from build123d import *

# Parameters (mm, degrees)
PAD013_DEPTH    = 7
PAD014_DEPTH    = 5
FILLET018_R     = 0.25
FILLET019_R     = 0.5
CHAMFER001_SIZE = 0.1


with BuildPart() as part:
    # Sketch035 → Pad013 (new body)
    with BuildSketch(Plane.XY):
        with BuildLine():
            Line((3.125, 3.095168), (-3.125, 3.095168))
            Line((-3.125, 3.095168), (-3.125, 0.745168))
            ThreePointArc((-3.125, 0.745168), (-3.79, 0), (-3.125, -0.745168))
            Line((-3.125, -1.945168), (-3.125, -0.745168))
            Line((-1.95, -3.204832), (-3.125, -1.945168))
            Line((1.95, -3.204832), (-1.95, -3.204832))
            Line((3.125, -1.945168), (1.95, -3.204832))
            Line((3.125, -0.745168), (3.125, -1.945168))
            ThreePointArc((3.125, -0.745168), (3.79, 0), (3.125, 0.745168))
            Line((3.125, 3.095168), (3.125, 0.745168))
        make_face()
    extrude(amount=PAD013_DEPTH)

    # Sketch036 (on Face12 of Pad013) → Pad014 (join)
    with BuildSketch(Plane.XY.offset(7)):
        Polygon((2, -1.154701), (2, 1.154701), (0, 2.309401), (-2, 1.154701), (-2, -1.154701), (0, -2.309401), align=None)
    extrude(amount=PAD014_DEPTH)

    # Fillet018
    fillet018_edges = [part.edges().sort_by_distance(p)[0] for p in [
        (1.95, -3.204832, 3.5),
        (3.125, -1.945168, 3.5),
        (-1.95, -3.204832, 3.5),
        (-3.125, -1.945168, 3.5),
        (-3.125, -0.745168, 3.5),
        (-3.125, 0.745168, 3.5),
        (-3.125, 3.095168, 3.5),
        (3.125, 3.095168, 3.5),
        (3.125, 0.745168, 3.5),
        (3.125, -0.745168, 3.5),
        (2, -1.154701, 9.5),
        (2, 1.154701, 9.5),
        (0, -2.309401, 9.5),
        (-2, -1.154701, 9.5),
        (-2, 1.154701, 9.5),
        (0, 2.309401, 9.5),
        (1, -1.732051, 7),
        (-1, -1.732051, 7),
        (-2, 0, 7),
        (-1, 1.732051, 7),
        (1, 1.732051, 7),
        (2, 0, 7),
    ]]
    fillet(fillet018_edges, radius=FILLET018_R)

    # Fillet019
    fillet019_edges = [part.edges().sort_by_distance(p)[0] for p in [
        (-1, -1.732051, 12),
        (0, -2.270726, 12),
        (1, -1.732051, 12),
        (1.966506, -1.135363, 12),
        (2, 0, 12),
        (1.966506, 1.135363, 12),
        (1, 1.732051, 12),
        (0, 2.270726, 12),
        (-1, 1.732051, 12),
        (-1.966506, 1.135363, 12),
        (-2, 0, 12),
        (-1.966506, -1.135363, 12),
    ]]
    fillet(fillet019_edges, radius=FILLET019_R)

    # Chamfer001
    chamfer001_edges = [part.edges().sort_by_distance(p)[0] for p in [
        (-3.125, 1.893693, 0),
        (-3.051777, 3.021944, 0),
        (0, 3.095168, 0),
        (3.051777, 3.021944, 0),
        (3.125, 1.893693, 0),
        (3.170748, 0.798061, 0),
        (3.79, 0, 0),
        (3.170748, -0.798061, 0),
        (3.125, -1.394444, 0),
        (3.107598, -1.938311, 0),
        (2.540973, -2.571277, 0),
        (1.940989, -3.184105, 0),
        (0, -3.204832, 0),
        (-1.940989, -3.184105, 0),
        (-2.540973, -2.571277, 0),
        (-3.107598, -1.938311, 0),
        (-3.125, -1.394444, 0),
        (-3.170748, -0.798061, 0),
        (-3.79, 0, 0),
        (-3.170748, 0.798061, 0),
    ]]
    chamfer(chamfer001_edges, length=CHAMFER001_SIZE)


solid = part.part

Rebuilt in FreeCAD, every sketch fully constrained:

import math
import FreeCAD as App
import Part
import Sketcher

V = App.Vector
Q = App.Units.Quantity


def edges_at(feature, points):
    """Names of the edges that pass closest to the given points."""
    edges = feature.Shape.Edges
    near = lambda p: min(range(len(edges)), key=lambda i: edges[i].distToShape(Part.Vertex(*p))[0])
    return sorted({f"Edge{near(p) + 1}" for p in points})

doc = App.newDocument("Part")
body = doc.addObject("PartDesign::Body", "Body")

# Sketch on XY plane
sketch1 = doc.addObject("Sketcher::SketchObject", "Sketch")
body.addObject(sketch1)
sketch1.AttachmentSupport = (doc.XY_Plane, [""])
sketch1.MapMode = "FlatFace"
sketch1.addGeometry(Part.LineSegment(V(3.1, 3.1, 0), V(-3.1, 3.1, 0)), False)
sketch1.addGeometry(Part.LineSegment(V(-3.1, 3.1, 0), V(-3.1, 0.7, 0)), False)
sketch1.addGeometry(Part.ArcOfCircle(Part.Circle(V(-3, 0, 0), V(0, 0, 1), 0.8), math.radians(97), math.radians(263)), False)
sketch1.addGeometry(Part.LineSegment(V(-3.1, -0.7, 0), V(-3.1, -1.9, 0)), False)
sketch1.addGeometry(Part.LineSegment(V(-3.1, -1.9, 0), V(-1.9, -3.2, 0)), False)
sketch1.addGeometry(Part.LineSegment(V(-1.9, -3.2, 0), V(1.9, -3.2, 0)), False)
sketch1.addGeometry(Part.LineSegment(V(1.9, -3.2, 0), V(3.1, -1.9, 0)), False)
sketch1.addGeometry(Part.LineSegment(V(3.1, -1.9, 0), V(3.1, -0.7, 0)), False)
sketch1.addGeometry(Part.ArcOfCircle(Part.Circle(V(3, 0, 0), V(0, 0, 1), 0.8), math.radians(-83), math.radians(83)), False)
sketch1.addGeometry(Part.LineSegment(V(3.1, 0.7, 0), V(3.1, 3.1, 0)), False)
sketch1.addConstraint(Sketcher.Constraint("Coincident", 0, 2, 1, 1))
sketch1.addConstraint(Sketcher.Constraint("Coincident", 1, 2, 2, 1))
sketch1.addConstraint(Sketcher.Constraint("Coincident", 2, 2, 3, 1))
sketch1.addConstraint(Sketcher.Constraint("Coincident", 3, 2, 4, 1))
sketch1.addConstraint(Sketcher.Constraint("Coincident", 4, 2, 5, 1))
sketch1.addConstraint(Sketcher.Constraint("Coincident", 5, 2, 6, 1))
sketch1.addConstraint(Sketcher.Constraint("Coincident", 6, 2, 7, 1))
sketch1.addConstraint(Sketcher.Constraint("Coincident", 7, 2, 8, 1))
sketch1.addConstraint(Sketcher.Constraint("Coincident", 8, 2, 9, 1))
sketch1.addConstraint(Sketcher.Constraint("Coincident", 9, 2, 0, 1))
sketch1.addConstraint(Sketcher.Constraint("Horizontal", 0))
sketch1.addConstraint(Sketcher.Constraint("Vertical", 1))
sketch1.addConstraint(Sketcher.Constraint("Vertical", 3))
sketch1.addConstraint(Sketcher.Constraint("Horizontal", 5))
sketch1.addConstraint(Sketcher.Constraint("Vertical", 7))
sketch1.addConstraint(Sketcher.Constraint("Vertical", 9))
sketch1.addConstraint(Sketcher.Constraint("Equal", 2, 8))
sketch1.addConstraint(Sketcher.Constraint("Symmetric", 2, 3, 8, 3, -1, 1))
sketch1.addConstraint(Sketcher.Constraint("Symmetric", 3, 2, 6, 2, -2))
sketch1.addConstraint(Sketcher.Constraint("Symmetric", 1, 2, 8, 2, -2))
sketch1.addConstraint(Sketcher.Constraint("Vertical", 1, 2, 2, 2))
sketch1.addConstraint(Sketcher.Constraint("Equal", 4, 6))
sketch1.addConstraint(Sketcher.Constraint("Radius", 2, Q("0.75 mm")))
sketch1.addConstraint(Sketcher.Constraint("DistanceX", 5, 1, 5, 2, Q("3.9 mm")))
sketch1.addConstraint(Sketcher.Constraint("DistanceY", 3, 2, 3, 1, Q("1.2 mm")))
sketch1.addConstraint(Sketcher.Constraint("DistanceX", 0, 2, 0, 1, Q("6.25 mm")))
sketch1.addConstraint(Sketcher.Constraint("DistanceY", 1, 2, 1, 1, Q("2.35 mm")))
sketch1.addConstraint(Sketcher.Constraint("DistanceX", 2, 3, -1, 1, Q("3.04 mm")))
sketch1.addConstraint(Sketcher.Constraint("DistanceY", 4, 2, 1, 2, Q("3.95 mm")))
pad1 = doc.addObject("PartDesign::Pad", "Pad")
body.addObject(pad1)
pad1.Profile = sketch1
pad1.Length = 7

# Sketch on XY plane
sketch2 = doc.addObject("Sketcher::SketchObject", "Sketch001")
body.addObject(sketch2)
sketch2.AttachmentSupport = (doc.XY_Plane, [""])
sketch2.MapMode = "FlatFace"
sketch2.AttachmentOffset = App.Placement(V(0, 0, 7), App.Rotation())
sketch2.addGeometry(Part.LineSegment(V(2, -1.2, 0), V(2, 1.2, 0)), False)
sketch2.addGeometry(Part.LineSegment(V(2, 1.2, 0), V(0, 2.3, 0)), False)
sketch2.addGeometry(Part.LineSegment(V(0, 2.3, 0), V(-2, 1.2, 0)), False)
sketch2.addGeometry(Part.LineSegment(V(-2, 1.2, 0), V(-2, -1.2, 0)), False)
sketch2.addGeometry(Part.LineSegment(V(-2, -1.2, 0), V(0, -2.3, 0)), False)
sketch2.addGeometry(Part.LineSegment(V(0, -2.3, 0), V(2, -1.2, 0)), False)
sketch2.addConstraint(Sketcher.Constraint("Coincident", 0, 2, 1, 1))
sketch2.addConstraint(Sketcher.Constraint("Coincident", 1, 2, 2, 1))
sketch2.addConstraint(Sketcher.Constraint("Coincident", 2, 2, 3, 1))
sketch2.addConstraint(Sketcher.Constraint("Coincident", 3, 2, 4, 1))
sketch2.addConstraint(Sketcher.Constraint("Coincident", 4, 2, 5, 1))
sketch2.addConstraint(Sketcher.Constraint("Coincident", 5, 2, 0, 1))
sketch2.addConstraint(Sketcher.Constraint("Vertical", 0))
sketch2.addConstraint(Sketcher.Constraint("Vertical", 3))
sketch2.addConstraint(Sketcher.Constraint("Symmetric", 0, 2, 3, 2, -1, 1))
sketch2.addConstraint(Sketcher.Constraint("Symmetric", 1, 2, 4, 2, -1, 1))
sketch2.addConstraint(Sketcher.Constraint("PointOnObject", 1, 2, -2))
sketch2.addConstraint(Sketcher.Constraint("Parallel", 2, 5))
sketch2.addConstraint(Sketcher.Constraint("Horizontal", 0, 2, 2, 2))
sketch2.addConstraint(Sketcher.Constraint("Angle", 1, Q("150.000012 deg")))
sketch2.addConstraint(Sketcher.Constraint("DistanceX", -1, 1, 0, 2, Q("2 mm")))
sketch2.addConstraint(Sketcher.Constraint("DistanceY", 0, 1, 0, 2, Q("2.309402 mm")))
pad2 = doc.addObject("PartDesign::Pad", "Pad001")
body.addObject(pad2)
pad2.Profile = sketch2
pad2.Length = 5
doc.recompute()

fillet = doc.addObject("PartDesign::Fillet", "Fillet")
body.addObject(fillet)
fillet.Base = (pad2, edges_at(pad2, [
    (1.95, -3.205, 3.5),
    (3.125, -1.945, 3.5),
    (-1.95, -3.205, 3.5),
    (-3.125, -1.945, 3.5),
    (-3.125, -0.745, 3.5),
    (-3.125, 0.745, 3.5),
    (-3.125, 3.095, 3.5),
    (3.125, 3.095, 3.5),
    (3.125, 0.745, 3.5),
    (3.125, -0.745, 3.5),
    (2, -1.155, 9.5),
    (2, 1.155, 9.5),
    (0, -2.309, 9.5),
    (-2, -1.155, 9.5),
    (-2, 1.155, 9.5),
    (0, 2.309, 9.5),
    (1, -1.732, 7),
    (-1, -1.732, 7),
    (-2, 0, 7),
    (-1, 1.732, 7),
    (1, 1.732, 7),
    (2, 0, 7),
]))
fillet.Radius = 0.25
doc.recompute()

fillet2 = doc.addObject("PartDesign::Fillet", "Fillet001")
body.addObject(fillet2)
fillet2.Base = (fillet, edges_at(fillet, [
    (-1, -1.732, 12),
    (0, -2.271, 12),
    (1, -1.732, 12),
    (1.967, -1.135, 12),
    (2, 0, 12),
    (1.967, 1.135, 12),
    (1, 1.732, 12),
    (0, 2.271, 12),
    (-1, 1.732, 12),
    (-1.967, 1.135, 12),
    (-2, 0, 12),
    (-1.967, -1.135, 12),
]))
fillet2.Radius = 0.5
doc.recompute()

chamfer = doc.addObject("PartDesign::Chamfer", "Chamfer")
body.addObject(chamfer)
chamfer.Base = (fillet2, edges_at(fillet2, [
    (-3.125, 1.894, 0),
    (-3.052, 3.022, 0),
    (0, 3.095, 0),
    (3.052, 3.022, 0),
    (3.125, 1.894, 0),
    (3.171, 0.798, 0),
    (3.79, 0, 0),
    (3.171, -0.798, 0),
    (3.125, -1.394, 0),
    (3.108, -1.938, 0),
    (2.541, -2.571, 0),
    (1.941, -3.184, 0),
    (0, -3.205, 0),
    (-1.941, -3.184, 0),
    (-2.541, -2.571, 0),
    (-3.108, -1.938, 0),
    (-3.125, -1.394, 0),
    (-3.171, -0.798, 0),
    (-3.79, 0, 0),
    (-3.171, 0.798, 0),
]))
chamfer.Size = 0.1

doc.recompute()
